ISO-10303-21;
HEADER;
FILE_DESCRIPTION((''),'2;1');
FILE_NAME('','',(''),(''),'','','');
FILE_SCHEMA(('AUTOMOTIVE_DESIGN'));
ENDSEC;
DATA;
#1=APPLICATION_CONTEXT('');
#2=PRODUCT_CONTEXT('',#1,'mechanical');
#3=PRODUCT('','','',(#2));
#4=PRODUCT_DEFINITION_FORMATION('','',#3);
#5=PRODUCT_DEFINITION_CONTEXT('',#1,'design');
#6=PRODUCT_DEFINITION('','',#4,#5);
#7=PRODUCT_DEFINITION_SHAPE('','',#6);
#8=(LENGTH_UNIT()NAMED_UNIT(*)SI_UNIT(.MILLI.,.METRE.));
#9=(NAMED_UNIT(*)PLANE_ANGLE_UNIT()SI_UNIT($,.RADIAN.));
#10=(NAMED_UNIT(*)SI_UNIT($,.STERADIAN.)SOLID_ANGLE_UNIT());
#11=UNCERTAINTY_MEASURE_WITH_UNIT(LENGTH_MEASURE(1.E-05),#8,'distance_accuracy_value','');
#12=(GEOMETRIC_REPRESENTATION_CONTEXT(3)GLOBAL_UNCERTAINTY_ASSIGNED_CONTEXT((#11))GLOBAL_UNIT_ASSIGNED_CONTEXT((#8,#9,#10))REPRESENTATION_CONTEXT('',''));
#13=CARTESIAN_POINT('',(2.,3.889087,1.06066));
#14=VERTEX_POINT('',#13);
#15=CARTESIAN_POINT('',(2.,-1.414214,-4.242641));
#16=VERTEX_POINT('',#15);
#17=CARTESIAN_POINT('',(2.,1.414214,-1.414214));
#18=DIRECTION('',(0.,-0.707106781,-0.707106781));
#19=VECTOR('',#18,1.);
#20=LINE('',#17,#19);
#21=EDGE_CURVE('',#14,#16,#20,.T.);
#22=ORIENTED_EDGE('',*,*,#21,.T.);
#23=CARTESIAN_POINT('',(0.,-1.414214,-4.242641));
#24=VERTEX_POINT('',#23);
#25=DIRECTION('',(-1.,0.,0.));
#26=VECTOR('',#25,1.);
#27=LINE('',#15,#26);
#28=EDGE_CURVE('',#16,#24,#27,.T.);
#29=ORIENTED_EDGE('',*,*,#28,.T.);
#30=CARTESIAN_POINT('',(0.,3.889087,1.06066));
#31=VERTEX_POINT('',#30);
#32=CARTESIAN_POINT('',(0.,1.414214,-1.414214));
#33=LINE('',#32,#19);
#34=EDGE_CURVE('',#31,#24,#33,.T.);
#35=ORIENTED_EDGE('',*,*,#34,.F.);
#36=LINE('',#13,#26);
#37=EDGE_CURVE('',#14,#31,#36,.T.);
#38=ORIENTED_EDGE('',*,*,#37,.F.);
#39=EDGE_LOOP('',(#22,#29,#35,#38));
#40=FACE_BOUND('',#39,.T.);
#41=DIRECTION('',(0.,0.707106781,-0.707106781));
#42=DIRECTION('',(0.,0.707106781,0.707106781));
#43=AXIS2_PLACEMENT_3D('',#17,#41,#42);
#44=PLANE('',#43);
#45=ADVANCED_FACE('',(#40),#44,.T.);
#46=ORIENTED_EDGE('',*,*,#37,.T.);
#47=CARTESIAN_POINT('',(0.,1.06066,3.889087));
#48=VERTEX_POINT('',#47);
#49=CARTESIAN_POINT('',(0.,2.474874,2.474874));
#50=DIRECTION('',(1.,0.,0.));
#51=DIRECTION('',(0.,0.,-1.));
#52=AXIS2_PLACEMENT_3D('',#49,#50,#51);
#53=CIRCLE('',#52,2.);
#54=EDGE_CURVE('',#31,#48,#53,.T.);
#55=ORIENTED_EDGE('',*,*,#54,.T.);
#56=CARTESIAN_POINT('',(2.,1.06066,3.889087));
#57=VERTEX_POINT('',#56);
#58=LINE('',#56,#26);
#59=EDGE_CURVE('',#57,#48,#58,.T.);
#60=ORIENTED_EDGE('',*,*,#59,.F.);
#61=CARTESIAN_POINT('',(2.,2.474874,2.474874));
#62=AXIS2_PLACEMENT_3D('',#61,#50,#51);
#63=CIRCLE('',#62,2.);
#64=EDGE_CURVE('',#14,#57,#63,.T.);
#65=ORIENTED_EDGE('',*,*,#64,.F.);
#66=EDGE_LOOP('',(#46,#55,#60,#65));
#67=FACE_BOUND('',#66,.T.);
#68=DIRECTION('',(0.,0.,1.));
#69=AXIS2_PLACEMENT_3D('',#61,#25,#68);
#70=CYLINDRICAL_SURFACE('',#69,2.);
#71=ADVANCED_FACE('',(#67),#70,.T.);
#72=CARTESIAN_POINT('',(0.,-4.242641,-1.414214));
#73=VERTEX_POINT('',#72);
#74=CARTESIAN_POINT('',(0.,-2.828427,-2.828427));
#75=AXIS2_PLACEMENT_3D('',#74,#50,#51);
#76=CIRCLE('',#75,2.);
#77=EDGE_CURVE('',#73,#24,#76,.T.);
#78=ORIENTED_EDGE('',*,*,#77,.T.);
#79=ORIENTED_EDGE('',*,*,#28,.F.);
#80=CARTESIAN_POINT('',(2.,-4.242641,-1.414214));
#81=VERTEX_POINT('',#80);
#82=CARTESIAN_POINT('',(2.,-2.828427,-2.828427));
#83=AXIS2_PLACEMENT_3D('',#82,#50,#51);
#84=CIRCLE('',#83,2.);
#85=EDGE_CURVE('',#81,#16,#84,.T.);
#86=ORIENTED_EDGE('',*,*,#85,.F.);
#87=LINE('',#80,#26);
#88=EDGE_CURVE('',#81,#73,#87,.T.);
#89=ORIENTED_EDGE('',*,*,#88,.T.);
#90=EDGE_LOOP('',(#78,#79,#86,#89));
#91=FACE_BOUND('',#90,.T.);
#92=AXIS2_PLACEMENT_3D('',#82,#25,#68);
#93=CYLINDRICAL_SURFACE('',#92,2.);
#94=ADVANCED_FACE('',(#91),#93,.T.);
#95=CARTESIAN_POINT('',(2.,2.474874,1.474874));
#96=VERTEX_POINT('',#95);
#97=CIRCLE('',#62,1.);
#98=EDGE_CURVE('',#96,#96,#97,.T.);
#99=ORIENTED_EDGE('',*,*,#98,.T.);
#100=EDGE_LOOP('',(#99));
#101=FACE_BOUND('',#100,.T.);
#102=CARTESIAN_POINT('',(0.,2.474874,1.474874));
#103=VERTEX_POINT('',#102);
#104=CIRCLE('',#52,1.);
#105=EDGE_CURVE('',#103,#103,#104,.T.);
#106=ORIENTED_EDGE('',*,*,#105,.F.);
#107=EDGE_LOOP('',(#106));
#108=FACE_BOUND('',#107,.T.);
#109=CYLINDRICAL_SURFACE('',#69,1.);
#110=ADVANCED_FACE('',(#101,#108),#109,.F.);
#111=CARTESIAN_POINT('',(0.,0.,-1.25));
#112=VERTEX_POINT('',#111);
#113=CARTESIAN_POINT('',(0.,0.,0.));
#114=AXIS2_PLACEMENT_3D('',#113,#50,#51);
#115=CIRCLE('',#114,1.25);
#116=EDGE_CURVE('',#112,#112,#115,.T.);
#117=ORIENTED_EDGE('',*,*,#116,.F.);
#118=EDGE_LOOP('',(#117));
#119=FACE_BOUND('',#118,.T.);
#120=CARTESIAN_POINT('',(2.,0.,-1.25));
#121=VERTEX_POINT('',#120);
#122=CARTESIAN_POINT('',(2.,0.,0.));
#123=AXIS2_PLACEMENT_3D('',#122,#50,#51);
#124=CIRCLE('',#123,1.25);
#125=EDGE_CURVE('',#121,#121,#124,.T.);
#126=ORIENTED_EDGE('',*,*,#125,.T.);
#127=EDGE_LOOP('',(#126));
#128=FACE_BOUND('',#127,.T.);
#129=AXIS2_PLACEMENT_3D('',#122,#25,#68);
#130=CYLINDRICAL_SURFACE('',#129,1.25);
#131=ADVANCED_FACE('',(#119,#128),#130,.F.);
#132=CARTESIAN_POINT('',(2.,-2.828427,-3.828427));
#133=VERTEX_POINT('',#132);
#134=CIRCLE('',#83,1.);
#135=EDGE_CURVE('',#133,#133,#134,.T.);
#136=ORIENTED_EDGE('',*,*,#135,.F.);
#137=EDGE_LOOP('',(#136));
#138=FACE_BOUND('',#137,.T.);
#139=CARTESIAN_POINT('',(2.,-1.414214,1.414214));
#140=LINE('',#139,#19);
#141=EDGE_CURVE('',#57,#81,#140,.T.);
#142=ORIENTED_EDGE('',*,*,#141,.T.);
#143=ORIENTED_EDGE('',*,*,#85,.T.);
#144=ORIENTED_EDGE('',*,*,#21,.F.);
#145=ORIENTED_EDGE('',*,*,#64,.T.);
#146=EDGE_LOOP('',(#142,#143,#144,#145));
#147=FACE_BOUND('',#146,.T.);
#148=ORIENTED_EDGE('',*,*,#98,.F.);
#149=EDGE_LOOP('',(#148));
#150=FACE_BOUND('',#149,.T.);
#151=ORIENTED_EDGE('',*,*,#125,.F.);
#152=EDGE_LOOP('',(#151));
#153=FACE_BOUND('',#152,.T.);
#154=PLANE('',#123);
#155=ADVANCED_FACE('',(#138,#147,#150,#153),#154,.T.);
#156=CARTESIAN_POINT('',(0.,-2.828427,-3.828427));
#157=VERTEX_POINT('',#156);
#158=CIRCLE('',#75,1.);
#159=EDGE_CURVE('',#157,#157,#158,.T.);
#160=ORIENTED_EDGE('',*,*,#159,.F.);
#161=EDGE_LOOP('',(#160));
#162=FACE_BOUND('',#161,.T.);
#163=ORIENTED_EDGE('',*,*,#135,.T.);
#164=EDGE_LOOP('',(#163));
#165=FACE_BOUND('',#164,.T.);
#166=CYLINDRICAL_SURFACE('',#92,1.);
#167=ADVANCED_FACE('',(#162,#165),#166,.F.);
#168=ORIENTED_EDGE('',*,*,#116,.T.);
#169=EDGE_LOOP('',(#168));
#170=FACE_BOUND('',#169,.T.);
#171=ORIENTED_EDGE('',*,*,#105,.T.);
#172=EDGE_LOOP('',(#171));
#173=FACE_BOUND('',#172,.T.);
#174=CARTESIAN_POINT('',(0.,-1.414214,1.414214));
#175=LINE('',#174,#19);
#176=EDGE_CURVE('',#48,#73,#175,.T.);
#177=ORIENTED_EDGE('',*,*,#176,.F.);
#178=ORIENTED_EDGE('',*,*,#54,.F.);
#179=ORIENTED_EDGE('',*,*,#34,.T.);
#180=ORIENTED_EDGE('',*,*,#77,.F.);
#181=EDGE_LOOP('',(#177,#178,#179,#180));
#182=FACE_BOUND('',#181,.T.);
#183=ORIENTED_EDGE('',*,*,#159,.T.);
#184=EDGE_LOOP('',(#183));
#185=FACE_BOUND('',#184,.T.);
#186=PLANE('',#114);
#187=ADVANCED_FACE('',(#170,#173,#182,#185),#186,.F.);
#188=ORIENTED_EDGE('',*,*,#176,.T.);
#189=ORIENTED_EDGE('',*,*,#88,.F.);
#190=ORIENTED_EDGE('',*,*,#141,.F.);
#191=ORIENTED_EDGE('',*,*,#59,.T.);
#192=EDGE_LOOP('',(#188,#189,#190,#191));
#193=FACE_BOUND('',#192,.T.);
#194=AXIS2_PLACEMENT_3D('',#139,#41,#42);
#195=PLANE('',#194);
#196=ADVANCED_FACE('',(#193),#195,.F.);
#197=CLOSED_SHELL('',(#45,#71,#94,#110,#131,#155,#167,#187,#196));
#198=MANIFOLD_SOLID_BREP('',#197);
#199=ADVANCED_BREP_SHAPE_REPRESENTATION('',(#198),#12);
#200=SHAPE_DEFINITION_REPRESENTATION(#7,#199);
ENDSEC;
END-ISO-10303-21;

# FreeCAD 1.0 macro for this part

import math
import FreeCAD as App
import Part
import Sketcher

V = App.Vector
Q = App.Units.Quantity

doc = App.newDocument("Part")
params = doc.addObject("Spreadsheet::Sheet", "Params")
for row, (alias, value) in enumerate([
    ("sketch1_diameter", "2 mm"),
    ("sketch1_radius", "2 mm"),
    ("sketch1_diameter2", "2.5 mm"),
    ("sketch1_length", "7.5 mm"),
    ("pad1_length", "2 mm"),
], start=1):
    params.set(f"A{row}", alias)
    params.set(f"B{row}", "=" + value)
    params.setAlias(f"B{row}", alias)

body = doc.addObject("PartDesign::Body", "Body")

# Sketch on YZ plane
sketch1 = body.newObject("Sketcher::SketchObject", "Sketch")
sketch1.AttachmentSupport = (doc.getObject("YZ_Plane"), [""])
sketch1.MapMode = "FlatFace"
sketch1.addGeometry([
    Part.ArcOfCircle(Part.Circle(V(2.474874, 2.474874, 0), V(0, 0, 1), 2), math.radians(-45), math.radians(135)),  # 0
    Part.LineSegment(V(1.06066, 3.889087, 0), V(-4.242641, -1.414214, 0)),  # 1
    Part.ArcOfCircle(Part.Circle(V(-2.828427, -2.828427, 0), V(0, 0, 1), 2), math.radians(135), math.radians(315)),  # 2
    Part.LineSegment(V(-1.414214, -4.242641, 0), V(3.889087, 1.06066, 0)),  # 3
    Part.Circle(V(-2.828427, -2.828427, 0), V(0, 0, 1), 1),  # 4
    Part.Circle(V(0, 0, 0), V(0, 0, 1), 1.25),  # 5
    Part.Circle(V(2.474874, 2.474874, 0), V(0, 0, 1), 1),  # 6
], False)
sketch1.addConstraint([
    Sketcher.Constraint("Tangent", 0, 2, 1, 1),
    Sketcher.Constraint("Tangent", 1, 2, 2, 1),
    Sketcher.Constraint("Tangent", 2, 2, 3, 1),
    Sketcher.Constraint("Tangent", 3, 2, 0, 1),
    Sketcher.Constraint("Coincident", 5, 3, -1, 1),
    Sketcher.Constraint("Coincident", 4, 3, 2, 3),
    Sketcher.Constraint("Coincident", 6, 3, 0, 3),
    Sketcher.Constraint("Equal", 0, 2),
    Sketcher.Constraint("Equal", 4, 6),
    Sketcher.Constraint("Diameter", 4, 2.0),
    Sketcher.Constraint("Radius", 0, 2.0),
    Sketcher.Constraint("Diameter", 5, 2.5),
    Sketcher.Constraint("Angle", 1, Q("-135 deg")),
    Sketcher.Constraint("Distance", 1, 7.5),
    Sketcher.Constraint("DistanceX", -1, 1, 0, 2, 1.06066),
    Sketcher.Constraint("DistanceY", 2, 2, -1, 1, 4.242641),
])
sketch1.setExpression("Constraints[9]", "Params.sketch1_diameter")
sketch1.setExpression("Constraints[10]", "Params.sketch1_radius")
sketch1.setExpression("Constraints[11]", "Params.sketch1_diameter2")
sketch1.setExpression("Constraints[13]", "Params.sketch1_length")
pad1 = body.newObject("PartDesign::Pad", "Pad")
pad1.Profile = sketch1
pad1.setExpression("Length", "Params.pad1_length")

doc.recompute()
